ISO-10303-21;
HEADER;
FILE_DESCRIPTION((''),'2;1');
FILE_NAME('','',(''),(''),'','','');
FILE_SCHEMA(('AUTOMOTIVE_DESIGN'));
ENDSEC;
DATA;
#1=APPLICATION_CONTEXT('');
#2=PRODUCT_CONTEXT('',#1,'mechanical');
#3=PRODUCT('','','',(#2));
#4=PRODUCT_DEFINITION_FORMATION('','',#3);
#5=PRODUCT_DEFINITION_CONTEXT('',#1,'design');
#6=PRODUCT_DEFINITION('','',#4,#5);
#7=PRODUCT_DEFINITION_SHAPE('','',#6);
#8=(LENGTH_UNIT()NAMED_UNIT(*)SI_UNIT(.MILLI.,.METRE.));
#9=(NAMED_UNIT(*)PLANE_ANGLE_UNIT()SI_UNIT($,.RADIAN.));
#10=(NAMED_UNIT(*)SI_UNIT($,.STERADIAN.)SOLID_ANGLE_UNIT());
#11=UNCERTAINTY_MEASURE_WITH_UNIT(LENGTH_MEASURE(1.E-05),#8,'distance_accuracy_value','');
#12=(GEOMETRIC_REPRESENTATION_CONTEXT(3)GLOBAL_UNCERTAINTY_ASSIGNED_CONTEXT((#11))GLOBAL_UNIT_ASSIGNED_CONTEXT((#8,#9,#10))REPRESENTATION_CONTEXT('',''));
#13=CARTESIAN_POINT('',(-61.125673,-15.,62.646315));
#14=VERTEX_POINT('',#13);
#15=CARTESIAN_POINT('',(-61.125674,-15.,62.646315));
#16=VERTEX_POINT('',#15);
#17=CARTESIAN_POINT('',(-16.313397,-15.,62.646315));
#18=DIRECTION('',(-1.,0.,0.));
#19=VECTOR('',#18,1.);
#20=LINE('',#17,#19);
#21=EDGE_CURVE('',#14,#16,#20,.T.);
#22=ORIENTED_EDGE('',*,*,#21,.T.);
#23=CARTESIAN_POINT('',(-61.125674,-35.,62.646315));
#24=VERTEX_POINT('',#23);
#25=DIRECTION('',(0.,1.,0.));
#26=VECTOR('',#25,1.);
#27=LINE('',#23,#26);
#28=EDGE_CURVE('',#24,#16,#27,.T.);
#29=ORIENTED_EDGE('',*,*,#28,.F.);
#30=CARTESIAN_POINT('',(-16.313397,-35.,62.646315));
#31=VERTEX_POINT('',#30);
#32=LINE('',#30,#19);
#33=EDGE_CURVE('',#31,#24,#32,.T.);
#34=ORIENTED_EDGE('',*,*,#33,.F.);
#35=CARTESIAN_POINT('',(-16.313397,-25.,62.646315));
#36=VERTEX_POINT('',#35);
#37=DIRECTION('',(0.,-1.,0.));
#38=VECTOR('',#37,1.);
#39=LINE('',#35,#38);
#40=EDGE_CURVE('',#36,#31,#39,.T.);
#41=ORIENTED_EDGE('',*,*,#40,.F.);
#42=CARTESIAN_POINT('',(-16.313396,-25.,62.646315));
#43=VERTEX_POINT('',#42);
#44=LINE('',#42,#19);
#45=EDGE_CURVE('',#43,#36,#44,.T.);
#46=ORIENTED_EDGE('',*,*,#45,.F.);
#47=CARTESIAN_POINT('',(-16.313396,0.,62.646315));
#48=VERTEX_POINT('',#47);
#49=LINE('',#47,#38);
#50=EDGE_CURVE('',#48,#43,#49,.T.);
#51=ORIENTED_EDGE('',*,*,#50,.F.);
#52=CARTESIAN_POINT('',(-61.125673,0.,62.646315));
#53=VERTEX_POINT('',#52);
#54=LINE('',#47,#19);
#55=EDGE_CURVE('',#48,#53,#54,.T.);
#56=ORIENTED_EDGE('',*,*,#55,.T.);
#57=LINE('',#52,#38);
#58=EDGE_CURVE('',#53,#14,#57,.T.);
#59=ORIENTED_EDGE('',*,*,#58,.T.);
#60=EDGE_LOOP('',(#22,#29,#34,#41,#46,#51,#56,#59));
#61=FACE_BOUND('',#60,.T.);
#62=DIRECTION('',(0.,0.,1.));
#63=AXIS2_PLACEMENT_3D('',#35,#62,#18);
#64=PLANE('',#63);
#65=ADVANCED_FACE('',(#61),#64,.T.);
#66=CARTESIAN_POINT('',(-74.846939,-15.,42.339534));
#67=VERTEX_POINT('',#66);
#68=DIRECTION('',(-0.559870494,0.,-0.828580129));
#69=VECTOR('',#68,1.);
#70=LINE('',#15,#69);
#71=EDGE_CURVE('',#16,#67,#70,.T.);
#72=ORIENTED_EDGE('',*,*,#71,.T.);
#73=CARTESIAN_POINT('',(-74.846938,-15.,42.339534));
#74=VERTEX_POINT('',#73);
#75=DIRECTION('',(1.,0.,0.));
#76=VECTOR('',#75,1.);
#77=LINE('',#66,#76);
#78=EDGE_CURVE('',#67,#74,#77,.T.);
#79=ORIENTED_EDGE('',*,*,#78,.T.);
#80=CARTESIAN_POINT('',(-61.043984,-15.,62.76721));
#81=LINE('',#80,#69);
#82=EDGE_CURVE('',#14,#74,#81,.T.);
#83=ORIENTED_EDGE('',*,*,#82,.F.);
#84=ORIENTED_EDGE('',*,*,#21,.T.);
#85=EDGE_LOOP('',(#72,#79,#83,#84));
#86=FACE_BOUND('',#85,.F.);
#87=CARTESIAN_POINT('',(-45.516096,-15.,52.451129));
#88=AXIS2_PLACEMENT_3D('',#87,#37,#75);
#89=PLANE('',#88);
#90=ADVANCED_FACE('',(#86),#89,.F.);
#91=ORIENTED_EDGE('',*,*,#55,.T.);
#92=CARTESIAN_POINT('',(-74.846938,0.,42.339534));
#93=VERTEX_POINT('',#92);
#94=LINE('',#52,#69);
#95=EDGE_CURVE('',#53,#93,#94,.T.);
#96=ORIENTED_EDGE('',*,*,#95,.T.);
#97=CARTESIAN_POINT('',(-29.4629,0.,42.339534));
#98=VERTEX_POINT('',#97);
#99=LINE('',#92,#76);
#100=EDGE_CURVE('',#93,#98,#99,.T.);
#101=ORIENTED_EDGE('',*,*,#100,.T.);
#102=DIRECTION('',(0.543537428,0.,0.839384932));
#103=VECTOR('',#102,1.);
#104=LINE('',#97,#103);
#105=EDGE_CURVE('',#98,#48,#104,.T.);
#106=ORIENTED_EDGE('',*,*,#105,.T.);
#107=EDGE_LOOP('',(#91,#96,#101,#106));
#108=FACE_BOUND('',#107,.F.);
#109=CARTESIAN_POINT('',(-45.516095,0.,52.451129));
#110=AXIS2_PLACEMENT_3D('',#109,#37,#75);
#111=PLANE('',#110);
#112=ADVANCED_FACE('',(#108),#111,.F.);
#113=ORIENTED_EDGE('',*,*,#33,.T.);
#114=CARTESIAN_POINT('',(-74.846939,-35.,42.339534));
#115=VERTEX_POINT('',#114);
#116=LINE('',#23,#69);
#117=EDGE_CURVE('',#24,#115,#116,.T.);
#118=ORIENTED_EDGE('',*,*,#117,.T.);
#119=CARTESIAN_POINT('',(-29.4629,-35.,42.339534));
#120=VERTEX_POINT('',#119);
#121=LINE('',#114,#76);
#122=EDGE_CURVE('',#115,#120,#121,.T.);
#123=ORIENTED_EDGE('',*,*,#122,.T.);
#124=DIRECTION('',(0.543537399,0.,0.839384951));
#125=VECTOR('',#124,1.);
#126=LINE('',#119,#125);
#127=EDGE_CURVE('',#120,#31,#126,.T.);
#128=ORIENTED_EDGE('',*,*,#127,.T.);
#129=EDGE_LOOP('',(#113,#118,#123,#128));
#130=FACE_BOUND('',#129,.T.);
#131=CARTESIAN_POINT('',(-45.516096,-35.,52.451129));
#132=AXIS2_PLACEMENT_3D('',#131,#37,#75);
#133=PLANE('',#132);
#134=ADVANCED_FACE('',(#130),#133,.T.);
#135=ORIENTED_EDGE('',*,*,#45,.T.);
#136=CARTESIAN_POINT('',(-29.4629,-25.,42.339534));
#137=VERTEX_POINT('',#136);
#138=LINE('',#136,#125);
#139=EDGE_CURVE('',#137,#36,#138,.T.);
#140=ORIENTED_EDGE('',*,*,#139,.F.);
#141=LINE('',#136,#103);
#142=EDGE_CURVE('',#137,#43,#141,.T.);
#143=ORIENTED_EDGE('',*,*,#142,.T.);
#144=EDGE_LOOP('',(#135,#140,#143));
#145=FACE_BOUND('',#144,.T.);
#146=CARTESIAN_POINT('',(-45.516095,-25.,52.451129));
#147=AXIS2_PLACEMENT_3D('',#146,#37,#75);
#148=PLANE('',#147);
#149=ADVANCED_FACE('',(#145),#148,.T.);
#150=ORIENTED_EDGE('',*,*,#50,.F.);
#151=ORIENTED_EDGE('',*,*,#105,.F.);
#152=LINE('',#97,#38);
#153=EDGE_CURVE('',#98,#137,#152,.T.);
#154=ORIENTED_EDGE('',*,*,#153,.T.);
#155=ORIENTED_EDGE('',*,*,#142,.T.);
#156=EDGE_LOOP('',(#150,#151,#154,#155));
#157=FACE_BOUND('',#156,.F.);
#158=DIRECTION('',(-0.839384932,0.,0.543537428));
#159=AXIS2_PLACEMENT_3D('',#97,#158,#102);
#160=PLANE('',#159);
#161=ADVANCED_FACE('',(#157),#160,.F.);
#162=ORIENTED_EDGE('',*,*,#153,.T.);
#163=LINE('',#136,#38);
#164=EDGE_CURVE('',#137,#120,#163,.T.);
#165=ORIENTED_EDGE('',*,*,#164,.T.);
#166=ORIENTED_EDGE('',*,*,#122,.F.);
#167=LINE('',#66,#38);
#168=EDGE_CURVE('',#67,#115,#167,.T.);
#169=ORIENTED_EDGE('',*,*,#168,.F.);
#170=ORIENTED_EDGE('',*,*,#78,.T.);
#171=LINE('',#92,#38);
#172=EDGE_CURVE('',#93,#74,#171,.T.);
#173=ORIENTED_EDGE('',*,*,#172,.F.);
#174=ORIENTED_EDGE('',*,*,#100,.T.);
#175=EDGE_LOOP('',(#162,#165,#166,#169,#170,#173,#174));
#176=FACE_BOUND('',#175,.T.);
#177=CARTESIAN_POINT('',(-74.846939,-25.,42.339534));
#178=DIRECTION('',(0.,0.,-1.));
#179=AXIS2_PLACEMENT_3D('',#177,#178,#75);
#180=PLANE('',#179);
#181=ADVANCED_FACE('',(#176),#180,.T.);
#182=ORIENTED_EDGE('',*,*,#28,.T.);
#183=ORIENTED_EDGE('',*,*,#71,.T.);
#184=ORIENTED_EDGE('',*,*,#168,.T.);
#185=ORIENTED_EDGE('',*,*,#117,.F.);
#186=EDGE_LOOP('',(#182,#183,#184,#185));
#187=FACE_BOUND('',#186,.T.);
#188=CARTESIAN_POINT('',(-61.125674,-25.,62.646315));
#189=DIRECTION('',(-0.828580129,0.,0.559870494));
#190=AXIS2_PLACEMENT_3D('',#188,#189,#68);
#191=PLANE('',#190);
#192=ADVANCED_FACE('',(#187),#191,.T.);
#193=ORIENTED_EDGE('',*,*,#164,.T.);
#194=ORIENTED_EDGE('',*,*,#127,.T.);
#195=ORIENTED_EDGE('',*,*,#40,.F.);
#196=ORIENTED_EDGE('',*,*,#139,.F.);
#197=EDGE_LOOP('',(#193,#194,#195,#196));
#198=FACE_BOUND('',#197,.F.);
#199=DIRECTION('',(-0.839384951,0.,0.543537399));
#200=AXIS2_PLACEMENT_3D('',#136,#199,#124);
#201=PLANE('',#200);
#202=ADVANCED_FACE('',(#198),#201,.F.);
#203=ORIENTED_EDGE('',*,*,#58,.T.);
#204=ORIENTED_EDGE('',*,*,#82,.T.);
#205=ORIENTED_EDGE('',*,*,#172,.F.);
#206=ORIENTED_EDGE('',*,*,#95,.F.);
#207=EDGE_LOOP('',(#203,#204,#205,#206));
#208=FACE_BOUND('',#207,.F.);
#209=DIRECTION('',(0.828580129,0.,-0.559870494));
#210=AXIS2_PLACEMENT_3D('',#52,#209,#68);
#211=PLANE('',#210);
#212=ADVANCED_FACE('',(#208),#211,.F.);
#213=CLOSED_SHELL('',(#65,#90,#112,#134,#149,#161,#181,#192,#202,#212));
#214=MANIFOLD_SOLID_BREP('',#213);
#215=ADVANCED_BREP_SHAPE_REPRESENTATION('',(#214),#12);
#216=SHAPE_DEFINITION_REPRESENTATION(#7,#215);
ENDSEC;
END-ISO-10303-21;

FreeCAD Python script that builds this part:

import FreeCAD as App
import Part
import Sketcher

V = App.Vector


def add_polygon(sketch, points):
    """Adds a closed chain of lines whose ends are joined by coincident constraints."""
    first, n = sketch.GeometryCount, len(points)
    for a, b in zip(points, points[1:] + points[:1]):
        sketch.addGeometry(Part.LineSegment(App.Vector(*a, 0), App.Vector(*b, 0)), False)
    for i in range(n):
        sketch.addConstraint(Sketcher.Constraint("Coincident", first + i, 2, first + (i + 1) % n, 1))

doc = App.newDocument("Part")
body = doc.addObject("PartDesign::Body", "Body")

# Sketch on XZ plane
sketch1 = body.newObject("Sketcher::SketchObject", "Sketch")
sketch1.AttachmentSupport = (doc.getObject("XZ_Plane"), [""])
sketch1.MapMode = "FlatFace"
add_polygon(sketch1, [(-61.125673, 62.646315), (-74.846938, 42.339534), (-29.4629, 42.339534), (-16.313396, 62.646315)])  # lines 0-3
sketch1.addConstraint([
    Sketcher.Constraint("Horizontal", 1),
    Sketcher.Constraint("Horizontal", 3),
    Sketcher.Constraint("DistanceX", 1, 2, -1, 1, 29.4629),
    Sketcher.Constraint("DistanceX", 1, 1, 1, 2, 45.384038),
    Sketcher.Constraint("DistanceX", 3, 2, 3, 1, 44.812277),
    Sketcher.Constraint("DistanceY", 1, 2, 2, 2, 20.306781),
    Sketcher.Constraint("DistanceX", 0, 2, 2, 2, 58.533542),
    Sketcher.Constraint("DistanceY", -1, 1, 0, 2, 42.339534),
])
pad1 = body.newObject("PartDesign::Pad", "Pad")
pad1.Profile = sketch1
pad1.Length = 25

# Sketch on XZ plane
sketch2 = body.newObject("Sketcher::SketchObject", "Sketch001")
sketch2.AttachmentSupport = (doc.getObject("XZ_Plane"), [""])
sketch2.MapMode = "FlatFace"
sketch2.AttachmentOffset = App.Placement(V(0, 0, 25), App.Rotation())
add_polygon(sketch2, [(-61.125674, 62.646315), (-74.846939, 42.339534), (-29.4629, 42.339534), (-16.313397, 62.646315)])  # lines 0-3
sketch2.addConstraint([
    Sketcher.Constraint("Horizontal", 1),
    Sketcher.Constraint("Horizontal", 3),
    Sketcher.Constraint("DistanceX", 1, 1, 1, 2, 45.384039),
    Sketcher.Constraint("DistanceX", 1, 2, -1, 1, 29.4629),
    Sketcher.Constraint("DistanceX", 3, 2, 3, 1, 44.812277),
    Sketcher.Constraint("DistanceY", 1, 2, 2, 2, 20.306781),
    Sketcher.Constraint("Distance", 0, 24.507927),
    Sketcher.Constraint("DistanceY", -1, 1, 0, 2, 42.339534),
])
pad2 = body.newObject("PartDesign::Pad", "Pad001")
pad2.Profile = sketch2
pad2.Type = "TwoLengths"
pad2.Length = 10
pad2.Length2 = 10

doc.recompute()
